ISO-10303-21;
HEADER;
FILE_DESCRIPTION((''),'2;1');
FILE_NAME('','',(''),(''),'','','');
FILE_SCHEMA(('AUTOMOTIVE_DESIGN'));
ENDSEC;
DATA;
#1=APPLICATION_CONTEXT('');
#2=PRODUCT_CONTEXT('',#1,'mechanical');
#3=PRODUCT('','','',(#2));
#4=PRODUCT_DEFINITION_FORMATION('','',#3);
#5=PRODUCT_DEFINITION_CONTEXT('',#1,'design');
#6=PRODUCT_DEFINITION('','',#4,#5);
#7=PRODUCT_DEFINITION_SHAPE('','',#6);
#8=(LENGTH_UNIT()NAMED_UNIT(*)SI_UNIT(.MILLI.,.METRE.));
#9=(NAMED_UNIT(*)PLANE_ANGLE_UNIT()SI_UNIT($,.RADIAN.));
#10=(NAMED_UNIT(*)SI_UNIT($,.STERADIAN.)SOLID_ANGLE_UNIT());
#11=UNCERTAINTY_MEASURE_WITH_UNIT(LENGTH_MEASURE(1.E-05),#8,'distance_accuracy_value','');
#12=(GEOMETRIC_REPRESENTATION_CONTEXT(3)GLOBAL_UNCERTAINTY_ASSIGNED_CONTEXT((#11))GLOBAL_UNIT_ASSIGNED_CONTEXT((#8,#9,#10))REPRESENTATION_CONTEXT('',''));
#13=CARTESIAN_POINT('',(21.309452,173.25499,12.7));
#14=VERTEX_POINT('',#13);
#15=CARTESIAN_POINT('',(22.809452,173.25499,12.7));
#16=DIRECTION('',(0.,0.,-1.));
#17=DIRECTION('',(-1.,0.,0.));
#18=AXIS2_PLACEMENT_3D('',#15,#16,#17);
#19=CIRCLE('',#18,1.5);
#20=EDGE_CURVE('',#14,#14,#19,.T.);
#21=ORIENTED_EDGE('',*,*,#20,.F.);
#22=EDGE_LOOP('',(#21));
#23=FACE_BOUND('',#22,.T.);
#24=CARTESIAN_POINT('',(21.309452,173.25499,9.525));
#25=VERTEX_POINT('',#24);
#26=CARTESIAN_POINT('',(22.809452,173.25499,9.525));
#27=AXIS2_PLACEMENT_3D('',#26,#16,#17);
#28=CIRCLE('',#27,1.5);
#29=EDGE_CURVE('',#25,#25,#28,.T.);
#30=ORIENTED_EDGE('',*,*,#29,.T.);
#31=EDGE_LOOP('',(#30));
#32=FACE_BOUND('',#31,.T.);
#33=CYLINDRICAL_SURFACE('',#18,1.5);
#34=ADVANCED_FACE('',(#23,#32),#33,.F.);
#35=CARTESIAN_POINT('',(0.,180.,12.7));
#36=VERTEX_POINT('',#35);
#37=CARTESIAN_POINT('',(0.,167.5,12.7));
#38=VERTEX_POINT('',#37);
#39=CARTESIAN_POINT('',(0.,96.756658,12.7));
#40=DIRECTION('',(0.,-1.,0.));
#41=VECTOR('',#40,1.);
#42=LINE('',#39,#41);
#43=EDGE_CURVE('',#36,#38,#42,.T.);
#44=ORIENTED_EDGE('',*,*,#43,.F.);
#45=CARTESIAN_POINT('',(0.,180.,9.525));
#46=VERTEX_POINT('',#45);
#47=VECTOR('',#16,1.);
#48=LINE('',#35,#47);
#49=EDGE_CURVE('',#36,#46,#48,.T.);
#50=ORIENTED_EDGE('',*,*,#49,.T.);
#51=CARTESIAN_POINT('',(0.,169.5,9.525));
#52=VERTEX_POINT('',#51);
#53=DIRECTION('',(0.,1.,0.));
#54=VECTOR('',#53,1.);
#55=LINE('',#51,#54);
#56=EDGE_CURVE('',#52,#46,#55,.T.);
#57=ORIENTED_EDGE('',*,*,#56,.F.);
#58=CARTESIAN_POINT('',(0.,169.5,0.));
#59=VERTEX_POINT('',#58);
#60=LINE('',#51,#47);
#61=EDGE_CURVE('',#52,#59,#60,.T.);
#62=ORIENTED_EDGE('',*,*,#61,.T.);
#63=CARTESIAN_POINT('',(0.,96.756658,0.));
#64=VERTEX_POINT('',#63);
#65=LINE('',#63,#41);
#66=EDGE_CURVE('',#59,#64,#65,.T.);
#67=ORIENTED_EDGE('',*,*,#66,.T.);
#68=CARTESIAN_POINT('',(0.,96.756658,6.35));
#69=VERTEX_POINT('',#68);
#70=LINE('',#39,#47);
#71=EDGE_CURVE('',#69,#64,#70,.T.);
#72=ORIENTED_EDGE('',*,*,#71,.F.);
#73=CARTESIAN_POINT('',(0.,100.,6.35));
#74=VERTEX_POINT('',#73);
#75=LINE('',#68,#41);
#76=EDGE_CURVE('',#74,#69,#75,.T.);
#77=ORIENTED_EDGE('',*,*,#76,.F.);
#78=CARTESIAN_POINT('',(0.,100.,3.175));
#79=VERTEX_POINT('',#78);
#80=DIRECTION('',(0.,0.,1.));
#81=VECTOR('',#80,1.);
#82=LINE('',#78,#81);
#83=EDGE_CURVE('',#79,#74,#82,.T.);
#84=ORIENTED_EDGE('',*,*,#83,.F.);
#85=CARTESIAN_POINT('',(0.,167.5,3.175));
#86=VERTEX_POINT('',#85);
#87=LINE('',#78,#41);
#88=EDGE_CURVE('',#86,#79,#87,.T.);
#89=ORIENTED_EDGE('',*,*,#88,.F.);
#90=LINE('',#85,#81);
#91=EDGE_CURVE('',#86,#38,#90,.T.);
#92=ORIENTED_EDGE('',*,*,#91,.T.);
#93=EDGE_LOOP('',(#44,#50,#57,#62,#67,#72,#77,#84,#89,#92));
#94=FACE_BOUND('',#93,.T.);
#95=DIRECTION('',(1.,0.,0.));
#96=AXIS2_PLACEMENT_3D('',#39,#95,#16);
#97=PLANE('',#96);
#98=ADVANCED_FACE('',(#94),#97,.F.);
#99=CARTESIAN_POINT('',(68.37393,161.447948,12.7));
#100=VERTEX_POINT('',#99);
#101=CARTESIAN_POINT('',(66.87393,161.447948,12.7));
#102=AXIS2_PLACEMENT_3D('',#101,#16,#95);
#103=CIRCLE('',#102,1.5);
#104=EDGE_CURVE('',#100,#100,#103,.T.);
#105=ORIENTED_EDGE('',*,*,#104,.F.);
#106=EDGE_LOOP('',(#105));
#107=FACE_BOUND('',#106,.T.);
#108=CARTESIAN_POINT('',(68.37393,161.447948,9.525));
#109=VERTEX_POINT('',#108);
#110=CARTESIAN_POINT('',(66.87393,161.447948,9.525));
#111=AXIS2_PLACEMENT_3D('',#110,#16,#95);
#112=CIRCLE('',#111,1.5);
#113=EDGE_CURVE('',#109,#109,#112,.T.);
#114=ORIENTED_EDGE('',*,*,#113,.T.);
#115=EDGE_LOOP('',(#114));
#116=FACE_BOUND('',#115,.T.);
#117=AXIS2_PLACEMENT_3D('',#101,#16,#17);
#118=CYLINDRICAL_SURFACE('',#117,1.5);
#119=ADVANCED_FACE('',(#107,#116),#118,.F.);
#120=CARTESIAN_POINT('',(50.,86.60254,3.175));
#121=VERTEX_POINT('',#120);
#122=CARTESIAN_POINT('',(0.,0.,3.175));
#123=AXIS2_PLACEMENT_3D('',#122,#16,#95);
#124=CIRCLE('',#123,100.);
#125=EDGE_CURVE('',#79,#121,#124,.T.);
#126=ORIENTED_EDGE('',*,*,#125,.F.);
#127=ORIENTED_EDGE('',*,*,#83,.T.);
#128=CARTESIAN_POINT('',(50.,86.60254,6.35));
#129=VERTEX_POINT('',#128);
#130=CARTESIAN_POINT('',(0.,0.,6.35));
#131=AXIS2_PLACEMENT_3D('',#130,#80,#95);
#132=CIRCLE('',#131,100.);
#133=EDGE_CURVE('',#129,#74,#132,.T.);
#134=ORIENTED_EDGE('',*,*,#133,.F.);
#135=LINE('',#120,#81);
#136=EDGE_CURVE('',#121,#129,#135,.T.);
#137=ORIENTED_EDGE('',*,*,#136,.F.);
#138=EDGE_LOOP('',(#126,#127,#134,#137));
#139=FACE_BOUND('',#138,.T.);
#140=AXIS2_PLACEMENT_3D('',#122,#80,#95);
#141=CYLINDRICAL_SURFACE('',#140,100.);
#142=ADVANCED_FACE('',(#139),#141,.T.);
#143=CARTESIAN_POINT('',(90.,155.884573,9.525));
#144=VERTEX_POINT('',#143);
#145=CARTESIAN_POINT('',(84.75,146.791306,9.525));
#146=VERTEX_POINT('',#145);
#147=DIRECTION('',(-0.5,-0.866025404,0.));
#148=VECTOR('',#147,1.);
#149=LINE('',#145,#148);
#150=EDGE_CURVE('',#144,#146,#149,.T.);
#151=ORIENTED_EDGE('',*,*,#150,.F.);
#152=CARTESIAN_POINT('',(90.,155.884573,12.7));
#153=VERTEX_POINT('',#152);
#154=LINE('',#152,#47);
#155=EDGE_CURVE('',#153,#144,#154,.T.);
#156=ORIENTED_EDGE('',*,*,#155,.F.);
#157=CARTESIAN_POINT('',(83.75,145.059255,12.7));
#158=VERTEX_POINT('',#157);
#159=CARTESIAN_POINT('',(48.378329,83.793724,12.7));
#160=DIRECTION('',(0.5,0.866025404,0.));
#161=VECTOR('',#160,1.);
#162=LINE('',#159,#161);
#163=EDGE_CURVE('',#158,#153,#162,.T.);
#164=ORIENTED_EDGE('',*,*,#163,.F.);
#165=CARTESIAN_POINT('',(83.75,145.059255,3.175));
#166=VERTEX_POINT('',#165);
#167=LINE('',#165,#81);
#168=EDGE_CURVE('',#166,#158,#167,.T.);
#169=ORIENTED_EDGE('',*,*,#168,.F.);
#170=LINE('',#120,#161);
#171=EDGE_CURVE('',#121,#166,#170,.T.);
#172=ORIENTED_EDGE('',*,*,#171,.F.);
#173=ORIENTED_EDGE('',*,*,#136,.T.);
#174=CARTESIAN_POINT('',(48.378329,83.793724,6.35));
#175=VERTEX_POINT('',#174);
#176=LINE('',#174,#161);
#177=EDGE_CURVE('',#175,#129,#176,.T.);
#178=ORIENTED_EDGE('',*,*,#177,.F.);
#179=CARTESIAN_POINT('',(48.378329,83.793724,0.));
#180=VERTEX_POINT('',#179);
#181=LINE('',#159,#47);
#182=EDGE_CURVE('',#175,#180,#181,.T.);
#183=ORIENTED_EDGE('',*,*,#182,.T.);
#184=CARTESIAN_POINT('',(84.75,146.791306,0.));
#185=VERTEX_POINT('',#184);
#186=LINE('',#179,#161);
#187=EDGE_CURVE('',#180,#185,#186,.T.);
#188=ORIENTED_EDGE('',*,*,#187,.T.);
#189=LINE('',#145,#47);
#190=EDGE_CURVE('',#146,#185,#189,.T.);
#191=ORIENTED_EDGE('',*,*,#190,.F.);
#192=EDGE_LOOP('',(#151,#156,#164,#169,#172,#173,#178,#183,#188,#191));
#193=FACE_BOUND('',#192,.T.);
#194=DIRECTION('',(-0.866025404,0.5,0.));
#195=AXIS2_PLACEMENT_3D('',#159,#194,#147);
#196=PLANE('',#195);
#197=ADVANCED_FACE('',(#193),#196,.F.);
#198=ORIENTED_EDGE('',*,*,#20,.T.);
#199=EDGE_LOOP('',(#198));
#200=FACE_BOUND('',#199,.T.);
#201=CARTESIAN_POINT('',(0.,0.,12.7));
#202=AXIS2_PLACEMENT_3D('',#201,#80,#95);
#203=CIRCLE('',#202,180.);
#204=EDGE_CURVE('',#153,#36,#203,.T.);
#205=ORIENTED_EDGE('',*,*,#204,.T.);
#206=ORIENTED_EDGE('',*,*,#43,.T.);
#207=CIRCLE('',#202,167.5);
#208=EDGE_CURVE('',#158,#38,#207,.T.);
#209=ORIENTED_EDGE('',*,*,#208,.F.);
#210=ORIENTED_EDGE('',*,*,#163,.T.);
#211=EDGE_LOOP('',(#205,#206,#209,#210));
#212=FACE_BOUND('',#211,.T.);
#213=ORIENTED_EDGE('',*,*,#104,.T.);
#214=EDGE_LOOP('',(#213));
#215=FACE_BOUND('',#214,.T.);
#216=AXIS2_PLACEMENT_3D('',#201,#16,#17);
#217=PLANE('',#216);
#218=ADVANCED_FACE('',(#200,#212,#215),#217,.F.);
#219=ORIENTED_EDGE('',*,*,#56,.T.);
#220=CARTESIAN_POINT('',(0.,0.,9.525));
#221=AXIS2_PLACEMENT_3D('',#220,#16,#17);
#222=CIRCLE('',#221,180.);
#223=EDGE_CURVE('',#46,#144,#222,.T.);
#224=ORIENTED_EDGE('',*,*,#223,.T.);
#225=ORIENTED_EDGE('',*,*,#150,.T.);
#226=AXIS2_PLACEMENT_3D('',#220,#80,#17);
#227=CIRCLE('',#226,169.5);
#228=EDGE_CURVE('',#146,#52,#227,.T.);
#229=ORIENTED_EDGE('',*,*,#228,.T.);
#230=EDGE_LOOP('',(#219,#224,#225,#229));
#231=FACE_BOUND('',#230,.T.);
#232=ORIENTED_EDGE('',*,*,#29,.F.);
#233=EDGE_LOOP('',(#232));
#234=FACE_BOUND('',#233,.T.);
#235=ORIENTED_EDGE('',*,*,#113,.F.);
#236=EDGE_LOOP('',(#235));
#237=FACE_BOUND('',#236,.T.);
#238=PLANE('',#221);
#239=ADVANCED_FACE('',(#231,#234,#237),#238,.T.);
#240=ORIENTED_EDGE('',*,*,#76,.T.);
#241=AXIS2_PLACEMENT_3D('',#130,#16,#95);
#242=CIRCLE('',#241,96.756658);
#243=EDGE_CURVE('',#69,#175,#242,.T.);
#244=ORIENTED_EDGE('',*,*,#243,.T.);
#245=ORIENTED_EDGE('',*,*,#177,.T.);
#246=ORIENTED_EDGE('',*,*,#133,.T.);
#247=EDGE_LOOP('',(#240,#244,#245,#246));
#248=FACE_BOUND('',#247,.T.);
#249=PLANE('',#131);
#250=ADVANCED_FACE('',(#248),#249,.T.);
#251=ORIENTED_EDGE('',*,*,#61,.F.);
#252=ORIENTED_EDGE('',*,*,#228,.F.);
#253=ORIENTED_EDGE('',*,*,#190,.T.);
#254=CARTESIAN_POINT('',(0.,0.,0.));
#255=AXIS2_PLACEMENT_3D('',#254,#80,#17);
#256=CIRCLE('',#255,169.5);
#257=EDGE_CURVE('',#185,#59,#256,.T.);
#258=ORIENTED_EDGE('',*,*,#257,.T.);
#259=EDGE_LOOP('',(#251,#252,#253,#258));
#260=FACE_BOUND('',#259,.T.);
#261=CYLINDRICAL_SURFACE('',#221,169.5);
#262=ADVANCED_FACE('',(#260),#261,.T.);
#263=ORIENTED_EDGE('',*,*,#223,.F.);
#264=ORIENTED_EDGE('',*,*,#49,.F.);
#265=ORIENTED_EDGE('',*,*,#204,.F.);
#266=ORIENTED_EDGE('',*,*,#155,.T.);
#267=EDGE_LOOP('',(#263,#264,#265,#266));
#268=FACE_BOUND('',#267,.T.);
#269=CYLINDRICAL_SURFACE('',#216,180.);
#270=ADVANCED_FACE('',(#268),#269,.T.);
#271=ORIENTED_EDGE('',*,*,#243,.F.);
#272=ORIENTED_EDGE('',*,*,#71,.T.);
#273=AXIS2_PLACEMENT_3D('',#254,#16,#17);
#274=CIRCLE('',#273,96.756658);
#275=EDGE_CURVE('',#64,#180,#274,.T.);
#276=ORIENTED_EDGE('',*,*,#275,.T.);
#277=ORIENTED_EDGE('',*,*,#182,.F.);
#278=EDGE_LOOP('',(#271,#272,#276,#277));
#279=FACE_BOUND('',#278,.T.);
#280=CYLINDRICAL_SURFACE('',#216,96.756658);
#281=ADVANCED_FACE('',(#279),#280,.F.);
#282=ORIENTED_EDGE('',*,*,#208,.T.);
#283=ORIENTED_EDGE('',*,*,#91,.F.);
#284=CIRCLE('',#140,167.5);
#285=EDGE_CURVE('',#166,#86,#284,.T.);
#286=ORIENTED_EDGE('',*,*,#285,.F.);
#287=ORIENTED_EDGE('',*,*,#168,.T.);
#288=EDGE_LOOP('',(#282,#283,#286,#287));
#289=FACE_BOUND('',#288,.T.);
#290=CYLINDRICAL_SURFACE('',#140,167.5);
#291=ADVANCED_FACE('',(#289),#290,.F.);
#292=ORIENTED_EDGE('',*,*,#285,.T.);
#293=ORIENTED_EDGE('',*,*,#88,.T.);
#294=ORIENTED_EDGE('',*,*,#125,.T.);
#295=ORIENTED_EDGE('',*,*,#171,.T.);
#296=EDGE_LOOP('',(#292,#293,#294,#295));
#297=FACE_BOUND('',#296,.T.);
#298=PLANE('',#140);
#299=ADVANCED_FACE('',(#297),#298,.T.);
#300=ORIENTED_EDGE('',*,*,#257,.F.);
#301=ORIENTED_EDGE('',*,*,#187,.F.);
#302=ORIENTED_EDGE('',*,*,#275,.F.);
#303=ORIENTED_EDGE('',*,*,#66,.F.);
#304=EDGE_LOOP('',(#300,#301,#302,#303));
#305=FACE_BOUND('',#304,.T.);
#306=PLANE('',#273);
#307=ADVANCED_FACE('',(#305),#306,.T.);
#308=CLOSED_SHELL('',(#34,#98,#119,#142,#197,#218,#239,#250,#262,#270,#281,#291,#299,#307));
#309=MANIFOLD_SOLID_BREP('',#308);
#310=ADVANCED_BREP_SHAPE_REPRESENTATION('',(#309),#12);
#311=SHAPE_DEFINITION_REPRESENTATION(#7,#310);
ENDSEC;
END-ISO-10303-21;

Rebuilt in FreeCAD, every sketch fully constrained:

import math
import FreeCAD as App
import Part
import Sketcher

V = App.Vector
Q = App.Units.Quantity

doc = App.newDocument("Part")
body = doc.addObject("PartDesign::Body", "Body")

# Sketch on XY plane
sketch1 = doc.addObject("Sketcher::SketchObject", "Sketch")
body.addObject(sketch1)
sketch1.AttachmentSupport = (doc.XY_Plane, [""])
sketch1.MapMode = "FlatFace"
sketch1.addGeometry([
    Part.LineSegment(V(48.378329, 83.793724, 0), V(90, 155.884573, 0)),
    Part.ArcOfCircle(Part.Circle(V(0, 0, 0), V(0, 0, 1), 180), math.radians(60), math.radians(90)),
    Part.LineSegment(V(0, 180, 0), V(0, 96.756658, 0)),
    Part.ArcOfCircle(Part.Circle(V(0, 0, 0), V(0, 0, 1), 96.756658), math.radians(60), math.radians(90)),
], False)
sketch1.addConstraint([
    Sketcher.Constraint("Coincident", 0, 2, 1, 1),
    Sketcher.Constraint("Coincident", 1, 2, 2, 1),
    Sketcher.Constraint("Coincident", 2, 2, 3, 2),
    Sketcher.Constraint("Coincident", 3, 1, 0, 1),
    Sketcher.Constraint("Vertical", 2),
    Sketcher.Constraint("Coincident", 1, 3, -1, 1),
    Sketcher.Constraint("Coincident", 3, 3, -1, 1),
    Sketcher.Constraint("PointOnObject", 1, 2, -2),
    Sketcher.Constraint("Radius", 1, 180.0),
    Sketcher.Constraint("Angle", 0, Q("60 deg")),
    Sketcher.Constraint("DistanceX", -1, 1, 0, 2, 90.0),
    Sketcher.Constraint("Radius", 3, 96.756658),
])
pad1 = doc.addObject("PartDesign::Pad", "Pad")
body.addObject(pad1)
pad1.Profile = sketch1
pad1.Length = 12.7

# Sketch on XY plane
sketch2 = doc.addObject("Sketcher::SketchObject", "Sketch001")
body.addObject(sketch2)
sketch2.AttachmentSupport = (doc.XY_Plane, [""])
sketch2.MapMode = "FlatFace"
sketch2.AttachmentOffset = App.Placement(V(0, 0, 12.7), App.Rotation())
sketch2.addGeometry([
    Part.LineSegment(V(0, 167.5, 0), V(0, 100, 0)),
    Part.ArcOfCircle(Part.Circle(V(0, 0, 0), V(0, 0, 1), 100), math.radians(60), math.radians(90)),
    Part.LineSegment(V(50, 86.60254, 0), V(83.75, 145.059255, 0)),
    Part.ArcOfCircle(Part.Circle(V(0, 0, 0), V(0, 0, 1), 167.5), math.radians(60), math.radians(90)),
], False)
sketch2.addConstraint([
    Sketcher.Constraint("Coincident", 0, 2, 1, 2),
    Sketcher.Constraint("Coincident", 1, 1, 2, 1),
    Sketcher.Constraint("Coincident", 2, 2, 3, 1),
    Sketcher.Constraint("Coincident", 3, 2, 0, 1),
    Sketcher.Constraint("Vertical", 0),
    Sketcher.Constraint("Coincident", 1, 3, -1, 1),
    Sketcher.Constraint("Coincident", 3, 3, -1, 1),
    Sketcher.Constraint("PointOnObject", 0, 2, -2),
    Sketcher.Constraint("Radius", 1, 100.0),
    Sketcher.Constraint("Radius", 3, 167.5),
    Sketcher.Constraint("Angle", 2, Q("60 deg")),
    Sketcher.Constraint("DistanceX", -1, 1, 1, 1, 50.0),
])
pocket1 = doc.addObject("PartDesign::Pocket", "Pocket")
body.addObject(pocket1)
pocket1.Profile = sketch2
pocket1.Length = 9.525

# Sketch on XY plane
sketch3 = doc.addObject("Sketcher::SketchObject", "Sketch002")
body.addObject(sketch3)
sketch3.AttachmentSupport = (doc.XY_Plane, [""])
sketch3.MapMode = "FlatFace"
sketch3.AttachmentOffset = App.Placement(V(0, 0, 12.7), App.Rotation())
sketch3.addGeometry([
    Part.LineSegment(V(48.378329, 83.793724, 0), V(50, 86.60254, 0)),
    Part.ArcOfCircle(Part.Circle(V(0, 0, 0), V(0, 0, 1), 100), math.radians(60), math.radians(90)),
    Part.LineSegment(V(0, 100, 0), V(0, 96.756658, 0)),
    Part.ArcOfCircle(Part.Circle(V(0, 0, 0), V(0, 0, 1), 96.756658), math.radians(60), math.radians(90)),
], False)
sketch3.addConstraint([
    Sketcher.Constraint("Coincident", 0, 2, 1, 1),
    Sketcher.Constraint("Coincident", 1, 2, 2, 1),
    Sketcher.Constraint("Coincident", 2, 2, 3, 2),
    Sketcher.Constraint("Coincident", 3, 1, 0, 1),
    Sketcher.Constraint("Vertical", 2),
    Sketcher.Constraint("Coincident", 1, 3, -1, 1),
    Sketcher.Constraint("Coincident", 3, 3, -1, 1),
    Sketcher.Constraint("PointOnObject", 1, 2, -2),
    Sketcher.Constraint("Radius", 1, 100.0),
    Sketcher.Constraint("Angle", 0, Q("60 deg")),
    Sketcher.Constraint("DistanceX", -1, 1, 0, 2, 50.0),
    Sketcher.Constraint("Radius", 3, 96.756658),
])
pocket2 = doc.addObject("PartDesign::Pocket", "Pocket001")
body.addObject(pocket2)
pocket2.Profile = sketch3
pocket2.Length = 6.35

# Sketch on XY plane
sketch4 = doc.addObject("Sketcher::SketchObject", "Sketch003")
body.addObject(sketch4)
sketch4.AttachmentSupport = (doc.XY_Plane, [""])
sketch4.MapMode = "FlatFace"
sketch4.addGeometry([
    Part.LineSegment(V(0, 169.5, 0), V(0, 180, 0)),
    Part.ArcOfCircle(Part.Circle(V(0, 0, 0), V(0, 0, 1), 180), math.radians(60), math.radians(90)),
    Part.LineSegment(V(90, 155.884573, 0), V(84.75, 146.791306, 0)),
    Part.ArcOfCircle(Part.Circle(V(0, 0, 0), V(0, 0, 1), 169.5), math.radians(60), math.radians(90)),
], False)
sketch4.addConstraint([
    Sketcher.Constraint("Coincident", 0, 2, 1, 2),
    Sketcher.Constraint("Coincident", 1, 1, 2, 1),
    Sketcher.Constraint("Coincident", 2, 2, 3, 1),
    Sketcher.Constraint("Coincident", 3, 2, 0, 1),
    Sketcher.Constraint("Vertical", 0),
    Sketcher.Constraint("Coincident", 1, 3, -1, 1),
    Sketcher.Constraint("Coincident", 3, 3, -1, 1),
    Sketcher.Constraint("PointOnObject", 0, 2, -2),
    Sketcher.Constraint("Radius", 1, 180.0),
    Sketcher.Constraint("Radius", 3, 169.5),
    Sketcher.Constraint("Angle", 2, Q("-120 deg")),
    Sketcher.Constraint("DistanceX", -1, 1, 1, 1, 90.0),
])
pocket3 = doc.addObject("PartDesign::Pocket", "Pocket002")
body.addObject(pocket3)
pocket3.Profile = sketch4
pocket3.Length = 9.525
pocket3.Reversed = True

# Sketch on XY plane
sketch5 = doc.addObject("Sketcher::SketchObject", "Sketch004")
body.addObject(sketch5)
sketch5.AttachmentSupport = (doc.XY_Plane, [""])
sketch5.MapMode = "FlatFace"
sketch5.AttachmentOffset = App.Placement(V(0, 0, 9.525), App.Rotation())
sketch5.addGeometry([
    Part.Circle(V(22.809452, 173.25499, 0), V(0, 0, 1), 1.5),
    Part.Circle(V(66.87393, 161.447948, 0), V(0, 0, 1), 1.5),
], False)
sketch5.addConstraint([
    Sketcher.Constraint("Equal", 0, 1),
    Sketcher.Constraint("Diameter", 0, 3.0),
    Sketcher.Constraint("DistanceY", -1, 1, 0, 3, 173.25499),
    Sketcher.Constraint("DistanceX", -1, 1, 1, 3, 66.87393),
    Sketcher.Constraint("DistanceY", -1, 1, 1, 3, 161.447948),
    Sketcher.Constraint("DistanceX", -1, 1, 0, 3, 22.809452),
])
pocket4 = doc.addObject("PartDesign::Pocket", "Pocket003")
body.addObject(pocket4)
pocket4.Profile = sketch5
pocket4.Length = 3.175
pocket4.Reversed = True

doc.recompute()
